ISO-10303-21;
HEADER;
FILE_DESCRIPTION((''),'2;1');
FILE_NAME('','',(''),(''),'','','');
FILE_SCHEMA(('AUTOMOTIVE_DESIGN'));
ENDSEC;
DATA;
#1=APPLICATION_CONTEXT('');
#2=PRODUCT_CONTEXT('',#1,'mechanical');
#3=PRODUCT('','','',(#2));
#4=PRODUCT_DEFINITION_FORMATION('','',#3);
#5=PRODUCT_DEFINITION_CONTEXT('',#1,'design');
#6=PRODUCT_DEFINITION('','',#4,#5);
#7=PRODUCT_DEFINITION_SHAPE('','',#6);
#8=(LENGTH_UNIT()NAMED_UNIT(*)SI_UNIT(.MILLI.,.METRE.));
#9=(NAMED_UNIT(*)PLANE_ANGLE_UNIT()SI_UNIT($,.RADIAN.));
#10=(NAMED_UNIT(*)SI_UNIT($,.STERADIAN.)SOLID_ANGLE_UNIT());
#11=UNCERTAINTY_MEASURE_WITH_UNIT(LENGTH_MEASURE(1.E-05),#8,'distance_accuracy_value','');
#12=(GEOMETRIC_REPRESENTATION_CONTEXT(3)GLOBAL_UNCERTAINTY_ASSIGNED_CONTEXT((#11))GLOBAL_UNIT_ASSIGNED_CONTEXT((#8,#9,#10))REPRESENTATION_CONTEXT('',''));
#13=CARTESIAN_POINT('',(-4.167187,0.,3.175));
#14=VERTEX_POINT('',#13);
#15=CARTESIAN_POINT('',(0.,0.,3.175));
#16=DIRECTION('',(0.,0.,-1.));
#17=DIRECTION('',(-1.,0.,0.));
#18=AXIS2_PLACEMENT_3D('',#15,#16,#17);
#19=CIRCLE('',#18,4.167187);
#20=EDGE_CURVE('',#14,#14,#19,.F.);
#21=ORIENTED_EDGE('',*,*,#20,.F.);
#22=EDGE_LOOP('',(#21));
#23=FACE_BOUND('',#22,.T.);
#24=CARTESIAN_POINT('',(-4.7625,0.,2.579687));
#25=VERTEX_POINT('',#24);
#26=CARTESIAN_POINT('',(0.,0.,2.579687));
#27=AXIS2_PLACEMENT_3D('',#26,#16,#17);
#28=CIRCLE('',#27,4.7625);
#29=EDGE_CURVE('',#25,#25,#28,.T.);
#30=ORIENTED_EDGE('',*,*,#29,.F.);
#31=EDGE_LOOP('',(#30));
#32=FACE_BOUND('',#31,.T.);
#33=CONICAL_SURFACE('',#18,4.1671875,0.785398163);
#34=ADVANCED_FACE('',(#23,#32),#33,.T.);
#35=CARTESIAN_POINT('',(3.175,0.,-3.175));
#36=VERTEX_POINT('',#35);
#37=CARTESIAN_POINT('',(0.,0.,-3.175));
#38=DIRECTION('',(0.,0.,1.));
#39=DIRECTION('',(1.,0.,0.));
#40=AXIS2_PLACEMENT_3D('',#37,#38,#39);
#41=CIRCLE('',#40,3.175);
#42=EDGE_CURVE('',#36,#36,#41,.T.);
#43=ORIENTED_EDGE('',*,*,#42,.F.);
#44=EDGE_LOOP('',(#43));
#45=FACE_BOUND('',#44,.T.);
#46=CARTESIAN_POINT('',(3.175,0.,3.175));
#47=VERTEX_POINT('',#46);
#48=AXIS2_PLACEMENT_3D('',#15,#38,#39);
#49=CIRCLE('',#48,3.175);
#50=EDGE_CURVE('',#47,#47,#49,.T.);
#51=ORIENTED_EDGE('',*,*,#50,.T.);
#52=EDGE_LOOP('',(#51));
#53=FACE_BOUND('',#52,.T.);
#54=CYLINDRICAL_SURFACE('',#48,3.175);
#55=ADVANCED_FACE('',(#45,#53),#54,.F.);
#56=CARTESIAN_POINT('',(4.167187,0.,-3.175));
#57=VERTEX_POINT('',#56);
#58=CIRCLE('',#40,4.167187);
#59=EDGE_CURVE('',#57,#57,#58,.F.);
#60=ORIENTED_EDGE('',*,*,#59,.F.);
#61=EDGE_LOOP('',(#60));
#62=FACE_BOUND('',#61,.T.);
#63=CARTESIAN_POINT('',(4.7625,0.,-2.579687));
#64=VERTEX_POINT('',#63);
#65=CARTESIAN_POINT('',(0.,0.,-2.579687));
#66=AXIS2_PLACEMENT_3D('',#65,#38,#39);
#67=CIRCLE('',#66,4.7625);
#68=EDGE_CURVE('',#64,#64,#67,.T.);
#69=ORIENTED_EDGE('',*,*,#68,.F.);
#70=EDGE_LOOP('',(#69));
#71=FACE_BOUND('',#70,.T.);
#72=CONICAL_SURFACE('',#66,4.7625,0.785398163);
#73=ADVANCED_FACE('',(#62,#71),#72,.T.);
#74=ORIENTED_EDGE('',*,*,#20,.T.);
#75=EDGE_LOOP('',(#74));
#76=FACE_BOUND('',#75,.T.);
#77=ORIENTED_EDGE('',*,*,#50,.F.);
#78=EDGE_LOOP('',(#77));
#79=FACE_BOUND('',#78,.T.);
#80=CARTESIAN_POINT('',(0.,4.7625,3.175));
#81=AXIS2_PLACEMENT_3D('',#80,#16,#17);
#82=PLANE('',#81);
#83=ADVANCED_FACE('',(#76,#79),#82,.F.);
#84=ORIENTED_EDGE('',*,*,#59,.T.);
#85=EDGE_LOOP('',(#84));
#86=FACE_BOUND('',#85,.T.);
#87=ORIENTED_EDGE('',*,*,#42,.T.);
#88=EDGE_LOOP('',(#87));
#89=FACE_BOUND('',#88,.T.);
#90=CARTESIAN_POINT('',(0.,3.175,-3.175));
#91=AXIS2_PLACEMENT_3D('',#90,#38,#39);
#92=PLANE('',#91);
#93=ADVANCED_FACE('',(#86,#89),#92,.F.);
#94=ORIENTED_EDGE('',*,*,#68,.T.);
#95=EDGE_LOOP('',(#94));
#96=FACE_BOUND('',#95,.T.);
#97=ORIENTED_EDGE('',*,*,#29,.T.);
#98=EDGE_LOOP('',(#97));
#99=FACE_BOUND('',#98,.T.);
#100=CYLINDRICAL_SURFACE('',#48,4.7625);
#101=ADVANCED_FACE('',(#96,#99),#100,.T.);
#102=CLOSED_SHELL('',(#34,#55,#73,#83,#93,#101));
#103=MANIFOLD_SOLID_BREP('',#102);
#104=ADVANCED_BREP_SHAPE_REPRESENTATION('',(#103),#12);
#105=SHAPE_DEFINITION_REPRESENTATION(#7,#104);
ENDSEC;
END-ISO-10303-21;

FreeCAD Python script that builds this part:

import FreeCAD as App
import Part
import Sketcher
Q = App.Units.Quantity


def edges_at(feature, points):
    """Names of the edges that pass closest to the given points."""
    edges = feature.Shape.Edges
    near = lambda p: min(range(len(edges)), key=lambda i: edges[i].distToShape(Part.Vertex(*p))[0])
    return sorted({f"Edge{near(p) + 1}" for p in points})

doc = App.newDocument("Part")
body = doc.addObject("PartDesign::Body", "Body")

sketch1 = body.newObject("Sketcher::SketchObject", "Sketch")
sketch1.AttachmentSupport = (doc.getObject("YZ_Plane"), [""])
sketch1.MapMode = "FlatFace"
sketch1.addGeometry(Part.LineSegment(App.Vector(4.8, 3.2, 0), App.Vector(3.2, 3.2, 0)), False)
sketch1.addGeometry(Part.LineSegment(App.Vector(3.2, 3.2, 0), App.Vector(3.2, -3.2, 0)), False)
sketch1.addGeometry(Part.LineSegment(App.Vector(3.2, -3.2, 0), App.Vector(4.8, -3.2, 0)), False)
sketch1.addGeometry(Part.LineSegment(App.Vector(4.8, -3.2, 0), App.Vector(4.8, 3.2, 0)), False)
sketch1.addConstraint(Sketcher.Constraint("Coincident", 0, 2, 1, 1))
sketch1.addConstraint(Sketcher.Constraint("Coincident", 1, 2, 2, 1))
sketch1.addConstraint(Sketcher.Constraint("Coincident", 2, 2, 3, 1))
sketch1.addConstraint(Sketcher.Constraint("Coincident", 3, 2, 0, 1))
sketch1.addConstraint(Sketcher.Constraint("Horizontal", 0))
sketch1.addConstraint(Sketcher.Constraint("Vertical", 1))
sketch1.addConstraint(Sketcher.Constraint("Horizontal", 2))
sketch1.addConstraint(Sketcher.Constraint("Vertical", 3))
sketch1.addConstraint(Sketcher.Constraint("DistanceY", 1, 2, 1, 1, Q("0.25 in")))
sketch1.addConstraint(Sketcher.Constraint("DistanceX", 0, 2, 0, 1, Q("0.0625 in")))
sketch1.addConstraint(Sketcher.Constraint("DistanceX", -1, 1, 0, 2, Q("0.125 in")))
sketch1.addConstraint(Sketcher.Constraint("DistanceY", -1, 1, 0, 2, Q("0.125 in")))
revolution = body.newObject("PartDesign::Revolution", "Revolution")
revolution.Profile = sketch1
revolution.ReferenceAxis = (sketch1, ["V_Axis"])
revolution.Angle = 360
doc.recompute()

chamfer = body.newObject("PartDesign::Chamfer", "Chamfer")
chamfer.Base = (revolution, edges_at(revolution, [(-4.763, 0, 3.175), (-4.763, 0, -3.175)]))
chamfer.Size = 0.595313

doc.recompute()
